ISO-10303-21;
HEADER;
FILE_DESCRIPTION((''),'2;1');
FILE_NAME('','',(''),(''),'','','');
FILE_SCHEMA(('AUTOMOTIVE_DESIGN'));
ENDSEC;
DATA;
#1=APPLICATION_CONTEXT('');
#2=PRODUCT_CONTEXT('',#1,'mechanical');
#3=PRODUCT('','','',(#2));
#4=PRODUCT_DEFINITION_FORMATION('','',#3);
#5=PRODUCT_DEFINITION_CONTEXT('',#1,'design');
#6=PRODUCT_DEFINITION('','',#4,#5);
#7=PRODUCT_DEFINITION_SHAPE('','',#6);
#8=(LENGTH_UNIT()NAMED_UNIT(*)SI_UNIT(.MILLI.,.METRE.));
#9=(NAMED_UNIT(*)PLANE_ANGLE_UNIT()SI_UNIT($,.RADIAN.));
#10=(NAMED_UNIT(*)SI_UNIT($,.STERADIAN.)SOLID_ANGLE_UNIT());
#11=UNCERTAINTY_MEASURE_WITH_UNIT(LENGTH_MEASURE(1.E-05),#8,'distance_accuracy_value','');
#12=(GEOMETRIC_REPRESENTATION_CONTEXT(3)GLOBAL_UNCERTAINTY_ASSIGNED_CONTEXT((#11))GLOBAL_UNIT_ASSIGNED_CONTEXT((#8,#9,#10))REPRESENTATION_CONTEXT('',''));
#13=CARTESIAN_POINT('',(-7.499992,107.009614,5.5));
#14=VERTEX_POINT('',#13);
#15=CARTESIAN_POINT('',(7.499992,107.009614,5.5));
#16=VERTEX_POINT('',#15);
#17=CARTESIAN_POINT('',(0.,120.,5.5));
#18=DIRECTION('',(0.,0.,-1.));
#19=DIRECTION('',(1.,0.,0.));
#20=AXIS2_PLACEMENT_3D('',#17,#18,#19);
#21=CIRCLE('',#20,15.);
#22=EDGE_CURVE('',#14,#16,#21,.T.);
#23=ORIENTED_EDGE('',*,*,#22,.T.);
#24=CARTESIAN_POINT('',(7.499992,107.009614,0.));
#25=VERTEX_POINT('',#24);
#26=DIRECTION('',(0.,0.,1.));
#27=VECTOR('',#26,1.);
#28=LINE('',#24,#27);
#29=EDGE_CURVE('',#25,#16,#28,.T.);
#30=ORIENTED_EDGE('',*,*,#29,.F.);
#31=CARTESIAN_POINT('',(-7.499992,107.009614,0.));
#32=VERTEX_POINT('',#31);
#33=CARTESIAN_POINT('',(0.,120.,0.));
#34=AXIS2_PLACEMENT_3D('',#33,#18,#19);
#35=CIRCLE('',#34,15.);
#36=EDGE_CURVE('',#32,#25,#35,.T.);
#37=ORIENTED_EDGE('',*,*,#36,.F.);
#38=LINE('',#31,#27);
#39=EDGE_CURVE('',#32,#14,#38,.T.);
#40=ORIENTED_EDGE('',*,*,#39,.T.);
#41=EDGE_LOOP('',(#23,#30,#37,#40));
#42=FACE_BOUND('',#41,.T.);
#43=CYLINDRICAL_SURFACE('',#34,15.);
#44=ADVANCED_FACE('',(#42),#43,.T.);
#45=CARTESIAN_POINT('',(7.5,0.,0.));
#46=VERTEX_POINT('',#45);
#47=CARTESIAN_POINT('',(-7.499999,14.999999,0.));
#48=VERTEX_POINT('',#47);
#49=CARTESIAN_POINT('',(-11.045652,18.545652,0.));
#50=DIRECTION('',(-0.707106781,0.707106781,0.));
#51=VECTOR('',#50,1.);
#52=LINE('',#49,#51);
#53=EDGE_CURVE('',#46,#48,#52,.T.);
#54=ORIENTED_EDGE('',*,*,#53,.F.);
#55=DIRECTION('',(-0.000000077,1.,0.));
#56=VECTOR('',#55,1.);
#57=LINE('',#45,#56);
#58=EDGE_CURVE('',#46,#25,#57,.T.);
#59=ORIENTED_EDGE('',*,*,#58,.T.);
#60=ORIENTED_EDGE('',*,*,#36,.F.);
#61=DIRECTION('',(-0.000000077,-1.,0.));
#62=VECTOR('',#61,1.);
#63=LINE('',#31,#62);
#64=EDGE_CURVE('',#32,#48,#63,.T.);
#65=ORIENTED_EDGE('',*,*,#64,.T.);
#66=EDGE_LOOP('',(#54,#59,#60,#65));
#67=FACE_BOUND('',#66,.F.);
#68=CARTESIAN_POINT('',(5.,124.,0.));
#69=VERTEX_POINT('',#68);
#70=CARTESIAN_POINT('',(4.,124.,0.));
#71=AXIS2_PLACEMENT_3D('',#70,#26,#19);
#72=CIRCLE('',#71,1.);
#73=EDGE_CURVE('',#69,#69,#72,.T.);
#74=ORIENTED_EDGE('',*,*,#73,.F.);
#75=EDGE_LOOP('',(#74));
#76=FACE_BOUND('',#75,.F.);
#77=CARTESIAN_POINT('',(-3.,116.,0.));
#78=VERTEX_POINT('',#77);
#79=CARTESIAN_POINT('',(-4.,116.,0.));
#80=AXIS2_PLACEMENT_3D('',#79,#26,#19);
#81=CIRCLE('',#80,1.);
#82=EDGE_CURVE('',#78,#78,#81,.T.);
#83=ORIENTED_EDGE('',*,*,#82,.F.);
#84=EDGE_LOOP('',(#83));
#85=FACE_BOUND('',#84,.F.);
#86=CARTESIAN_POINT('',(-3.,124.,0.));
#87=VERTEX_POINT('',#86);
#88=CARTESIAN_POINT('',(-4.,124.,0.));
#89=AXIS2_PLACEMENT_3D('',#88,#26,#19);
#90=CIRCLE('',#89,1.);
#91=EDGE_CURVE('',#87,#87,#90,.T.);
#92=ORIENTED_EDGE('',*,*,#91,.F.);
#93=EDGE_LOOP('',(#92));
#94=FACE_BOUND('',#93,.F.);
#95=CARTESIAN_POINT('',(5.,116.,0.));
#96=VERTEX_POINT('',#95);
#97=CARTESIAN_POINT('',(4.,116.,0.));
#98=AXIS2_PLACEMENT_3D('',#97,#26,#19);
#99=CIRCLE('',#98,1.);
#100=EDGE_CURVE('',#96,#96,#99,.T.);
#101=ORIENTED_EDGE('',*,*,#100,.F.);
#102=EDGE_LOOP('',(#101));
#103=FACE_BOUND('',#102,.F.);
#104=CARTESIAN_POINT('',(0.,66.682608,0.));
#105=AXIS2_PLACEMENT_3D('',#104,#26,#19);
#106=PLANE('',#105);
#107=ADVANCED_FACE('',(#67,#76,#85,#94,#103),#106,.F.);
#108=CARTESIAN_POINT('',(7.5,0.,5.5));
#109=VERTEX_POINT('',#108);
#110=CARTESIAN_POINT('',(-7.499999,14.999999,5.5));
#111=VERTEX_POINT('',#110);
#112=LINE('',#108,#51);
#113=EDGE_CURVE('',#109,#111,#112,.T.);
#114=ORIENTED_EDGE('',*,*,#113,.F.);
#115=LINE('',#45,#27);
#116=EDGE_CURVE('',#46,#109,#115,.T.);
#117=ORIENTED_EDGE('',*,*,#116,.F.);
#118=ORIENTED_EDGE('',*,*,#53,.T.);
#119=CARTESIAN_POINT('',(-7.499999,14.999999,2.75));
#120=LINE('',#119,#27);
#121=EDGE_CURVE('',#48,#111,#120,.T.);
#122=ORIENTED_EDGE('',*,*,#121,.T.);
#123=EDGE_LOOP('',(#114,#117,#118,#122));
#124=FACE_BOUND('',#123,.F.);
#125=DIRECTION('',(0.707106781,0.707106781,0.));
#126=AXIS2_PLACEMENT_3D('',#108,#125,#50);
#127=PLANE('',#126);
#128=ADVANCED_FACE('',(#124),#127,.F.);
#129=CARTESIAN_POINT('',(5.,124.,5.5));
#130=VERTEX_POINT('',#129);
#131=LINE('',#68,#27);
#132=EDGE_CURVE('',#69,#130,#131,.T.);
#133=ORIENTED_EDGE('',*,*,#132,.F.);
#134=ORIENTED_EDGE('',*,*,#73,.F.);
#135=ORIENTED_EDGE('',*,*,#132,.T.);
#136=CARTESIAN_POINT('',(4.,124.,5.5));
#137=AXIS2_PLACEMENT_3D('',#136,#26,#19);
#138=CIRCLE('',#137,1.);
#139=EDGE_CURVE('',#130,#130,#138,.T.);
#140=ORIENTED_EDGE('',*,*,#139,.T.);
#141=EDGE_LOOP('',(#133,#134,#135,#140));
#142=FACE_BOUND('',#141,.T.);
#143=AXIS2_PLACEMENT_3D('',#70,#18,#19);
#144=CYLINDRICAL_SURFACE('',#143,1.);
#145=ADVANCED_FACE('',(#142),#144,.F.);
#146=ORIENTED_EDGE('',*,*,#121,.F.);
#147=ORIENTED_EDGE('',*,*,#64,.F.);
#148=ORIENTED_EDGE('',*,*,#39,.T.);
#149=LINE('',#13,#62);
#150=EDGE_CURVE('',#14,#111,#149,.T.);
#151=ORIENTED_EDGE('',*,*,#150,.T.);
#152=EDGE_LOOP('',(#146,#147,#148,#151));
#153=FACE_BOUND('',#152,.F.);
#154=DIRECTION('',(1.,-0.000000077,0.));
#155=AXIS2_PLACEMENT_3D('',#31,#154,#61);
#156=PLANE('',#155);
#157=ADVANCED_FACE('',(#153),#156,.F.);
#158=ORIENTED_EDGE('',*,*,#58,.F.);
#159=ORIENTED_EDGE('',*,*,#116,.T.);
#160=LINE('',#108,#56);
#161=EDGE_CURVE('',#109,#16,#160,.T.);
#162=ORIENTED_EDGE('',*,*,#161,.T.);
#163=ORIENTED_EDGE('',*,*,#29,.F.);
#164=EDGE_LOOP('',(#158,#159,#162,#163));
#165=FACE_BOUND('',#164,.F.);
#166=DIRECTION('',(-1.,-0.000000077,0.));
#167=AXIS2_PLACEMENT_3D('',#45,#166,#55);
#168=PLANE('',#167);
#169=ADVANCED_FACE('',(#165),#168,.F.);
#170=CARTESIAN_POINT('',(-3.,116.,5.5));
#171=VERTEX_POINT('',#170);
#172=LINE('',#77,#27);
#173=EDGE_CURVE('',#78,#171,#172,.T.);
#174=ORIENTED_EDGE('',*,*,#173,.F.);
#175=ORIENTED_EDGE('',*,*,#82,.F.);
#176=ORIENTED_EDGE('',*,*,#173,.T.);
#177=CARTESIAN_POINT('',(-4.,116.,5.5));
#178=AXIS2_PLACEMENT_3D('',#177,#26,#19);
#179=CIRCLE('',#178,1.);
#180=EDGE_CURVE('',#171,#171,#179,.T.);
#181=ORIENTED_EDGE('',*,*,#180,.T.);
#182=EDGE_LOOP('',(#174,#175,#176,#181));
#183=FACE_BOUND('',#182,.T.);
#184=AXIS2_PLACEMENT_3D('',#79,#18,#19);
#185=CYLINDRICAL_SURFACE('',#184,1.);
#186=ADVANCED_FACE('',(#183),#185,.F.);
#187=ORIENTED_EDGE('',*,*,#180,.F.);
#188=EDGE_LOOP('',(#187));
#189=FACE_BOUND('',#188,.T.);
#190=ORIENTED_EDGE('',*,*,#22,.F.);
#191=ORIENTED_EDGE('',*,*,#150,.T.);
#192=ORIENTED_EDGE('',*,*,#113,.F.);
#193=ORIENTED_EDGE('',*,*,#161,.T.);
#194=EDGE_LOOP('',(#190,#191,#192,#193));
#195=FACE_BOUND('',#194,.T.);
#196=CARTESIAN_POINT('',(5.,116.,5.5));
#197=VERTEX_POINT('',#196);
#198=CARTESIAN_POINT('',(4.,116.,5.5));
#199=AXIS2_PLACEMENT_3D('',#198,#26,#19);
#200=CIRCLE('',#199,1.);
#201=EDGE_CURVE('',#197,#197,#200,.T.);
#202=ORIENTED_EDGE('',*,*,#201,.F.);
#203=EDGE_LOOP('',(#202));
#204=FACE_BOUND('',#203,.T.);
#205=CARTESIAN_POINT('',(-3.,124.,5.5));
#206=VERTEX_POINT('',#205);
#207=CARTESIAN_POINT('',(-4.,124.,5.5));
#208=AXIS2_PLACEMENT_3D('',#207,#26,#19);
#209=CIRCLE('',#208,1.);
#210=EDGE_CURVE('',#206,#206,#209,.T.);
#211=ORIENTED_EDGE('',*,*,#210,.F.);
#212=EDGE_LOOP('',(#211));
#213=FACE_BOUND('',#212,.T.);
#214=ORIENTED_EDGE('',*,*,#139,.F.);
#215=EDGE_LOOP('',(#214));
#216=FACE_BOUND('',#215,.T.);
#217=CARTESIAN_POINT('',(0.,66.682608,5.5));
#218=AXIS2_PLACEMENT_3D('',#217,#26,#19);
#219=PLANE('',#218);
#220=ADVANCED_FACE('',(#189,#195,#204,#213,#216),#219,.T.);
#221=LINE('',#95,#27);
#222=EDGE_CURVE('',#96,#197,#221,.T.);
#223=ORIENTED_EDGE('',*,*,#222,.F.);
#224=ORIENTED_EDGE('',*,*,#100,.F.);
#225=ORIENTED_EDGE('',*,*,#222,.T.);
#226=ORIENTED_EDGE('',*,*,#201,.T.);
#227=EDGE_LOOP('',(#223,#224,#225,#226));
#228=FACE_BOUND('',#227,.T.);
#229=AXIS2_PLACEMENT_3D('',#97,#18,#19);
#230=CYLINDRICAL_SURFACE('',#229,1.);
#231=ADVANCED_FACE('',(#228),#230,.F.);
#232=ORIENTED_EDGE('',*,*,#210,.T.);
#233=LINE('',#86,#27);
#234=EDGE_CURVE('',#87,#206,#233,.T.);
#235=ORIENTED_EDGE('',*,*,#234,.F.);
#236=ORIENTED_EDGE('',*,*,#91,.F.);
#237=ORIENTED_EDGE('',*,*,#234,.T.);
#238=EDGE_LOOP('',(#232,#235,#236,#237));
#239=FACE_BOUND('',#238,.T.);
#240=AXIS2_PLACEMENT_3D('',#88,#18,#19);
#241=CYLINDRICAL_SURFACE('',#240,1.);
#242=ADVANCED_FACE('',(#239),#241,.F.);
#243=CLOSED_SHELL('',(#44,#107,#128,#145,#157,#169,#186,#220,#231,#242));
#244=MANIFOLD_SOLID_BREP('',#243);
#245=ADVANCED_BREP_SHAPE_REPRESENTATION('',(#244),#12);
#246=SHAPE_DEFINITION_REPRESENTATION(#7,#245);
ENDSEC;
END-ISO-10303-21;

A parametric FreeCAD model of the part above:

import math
import FreeCAD as App
import Part
import Sketcher

doc = App.newDocument("Part")
params = doc.addObject("Spreadsheet::Sheet", "Params")
for row, (alias, value) in enumerate([
    ("sketch1_diameter", "2 mm"),
    ("sketch1_radius", "15 mm"),
    ("sketch1_width", "15 mm"),
    ("pad1_length", "5.5 mm"),
    ("sketch2_width", "15 mm"),
], start=1):
    params.set(f"A{row}", alias)
    params.set(f"B{row}", "=" + value)
    params.setAlias(f"B{row}", alias)

body = doc.addObject("PartDesign::Body", "Body")

sketch1 = body.newObject("Sketcher::SketchObject", "Sketch")
sketch1.AttachmentSupport = (doc.getObject("XY_Plane"), [""])
sketch1.MapMode = "FlatFace"
sketch1.addGeometry([
    Part.LineSegment(App.Vector(-7.5, 0, 0), App.Vector(7.5, 0, 0)),
    Part.LineSegment(App.Vector(7.5, 0, 0), App.Vector(7.5, 107.0096, 0)),
    Part.ArcOfCircle(Part.Circle(App.Vector(0, 120, 0), App.Vector(0, 0, 1), 15.000016), math.radians(-60.000036), math.radians(240.000036)),
    Part.LineSegment(App.Vector(-7.5, 107.0096, 0), App.Vector(-7.5, 0, 0)),
    Part.Circle(App.Vector(-4, 116, 0), App.Vector(0, 0, 1), 1),
    Part.Circle(App.Vector(-4, 124, 0), App.Vector(0, 0, 1), 1),
    Part.Circle(App.Vector(4, 116, 0), App.Vector(0, 0, 1), 1),
    Part.Circle(App.Vector(4, 124, 0), App.Vector(0, 0, 1), 1),
], False)
sketch1.addConstraint([
    Sketcher.Constraint("Coincident", 0, 2, 1, 1),
    Sketcher.Constraint("Coincident", 1, 2, 2, 1),
    Sketcher.Constraint("Coincident", 2, 2, 3, 1),
    Sketcher.Constraint("Coincident", 3, 2, 0, 1),
    Sketcher.Constraint("Horizontal", 0),
    Sketcher.Constraint("Vertical", 1),
    Sketcher.Constraint("Vertical", 3),
    Sketcher.Constraint("Equal", 4, 5),
    Sketcher.Constraint("Equal", 5, 6),
    Sketcher.Constraint("Equal", 6, 7),
    Sketcher.Constraint("Symmetric", 0, 2, 3, 2, -1, 1),
    Sketcher.Constraint("Symmetric", 4, 3, 6, 3, -2),
    Sketcher.Constraint("Symmetric", 5, 3, 7, 3, -2),
    Sketcher.Constraint("PointOnObject", 2, 3, -2),
    Sketcher.Constraint("Vertical", 4, 3, 5, 3),
    Sketcher.Constraint("Diameter", 4, 2.0),
    Sketcher.Constraint("Radius", 2, 15.0),
    Sketcher.Constraint("DistanceX", 0, 1, 0, 2, 15.0),
    Sketcher.Constraint("DistanceY", -1, 1, 2, 3, 120.0),
    Sketcher.Constraint("DistanceX", 4, 3, -1, 1, 4.0),
    Sketcher.Constraint("DistanceY", -1, 1, 4, 3, 116.0),
    Sketcher.Constraint("DistanceY", -1, 1, 5, 3, 124.0),
])
sketch1.setExpression("Constraints[15]", "Params.sketch1_diameter")
sketch1.setExpression("Constraints[16]", "Params.sketch1_radius")
sketch1.setExpression("Constraints[17]", "Params.sketch1_width")
pad1 = body.newObject("PartDesign::Pad", "Pad")
pad1.Profile = sketch1
pad1.setExpression("Length", "Params.pad1_length")

sketch2 = body.newObject("Sketcher::SketchObject", "Sketch001")
sketch2.AttachmentSupport = (doc.getObject("XY_Plane"), [""])
sketch2.MapMode = "FlatFace"
sketch2.AttachmentOffset = App.Placement(App.Vector(0, 0, 5.5), App.Rotation())
sketch2.addGeometry([
    Part.LineSegment(App.Vector(-7.5, 15, 0), App.Vector(-7.5, 0, 0)),
    Part.LineSegment(App.Vector(-7.5, 0, 0), App.Vector(7.5, 0, 0)),
    Part.LineSegment(App.Vector(7.5, 0, 0), App.Vector(-7.5, 15, 0)),
], False)
sketch2.addConstraint([
    Sketcher.Constraint("Coincident", 0, 2, 1, 1),
    Sketcher.Constraint("Coincident", 1, 2, 2, 1),
    Sketcher.Constraint("Coincident", 2, 2, 0, 1),
    Sketcher.Constraint("Vertical", 0),
    Sketcher.Constraint("Horizontal", 1),
    Sketcher.Constraint("Symmetric", 0, 2, 1, 2, -1, 1),
    Sketcher.Constraint("Equal", 1, 0),
    Sketcher.Constraint("DistanceX", 1, 1, 1, 2, 15.0),
])
sketch2.setExpression("Constraints[7]", "Params.sketch2_width")
pocket1 = body.newObject("PartDesign::Pocket", "Pocket")
pocket1.Profile = sketch2
pocket1.Type = "ThroughAll"

doc.recompute()
